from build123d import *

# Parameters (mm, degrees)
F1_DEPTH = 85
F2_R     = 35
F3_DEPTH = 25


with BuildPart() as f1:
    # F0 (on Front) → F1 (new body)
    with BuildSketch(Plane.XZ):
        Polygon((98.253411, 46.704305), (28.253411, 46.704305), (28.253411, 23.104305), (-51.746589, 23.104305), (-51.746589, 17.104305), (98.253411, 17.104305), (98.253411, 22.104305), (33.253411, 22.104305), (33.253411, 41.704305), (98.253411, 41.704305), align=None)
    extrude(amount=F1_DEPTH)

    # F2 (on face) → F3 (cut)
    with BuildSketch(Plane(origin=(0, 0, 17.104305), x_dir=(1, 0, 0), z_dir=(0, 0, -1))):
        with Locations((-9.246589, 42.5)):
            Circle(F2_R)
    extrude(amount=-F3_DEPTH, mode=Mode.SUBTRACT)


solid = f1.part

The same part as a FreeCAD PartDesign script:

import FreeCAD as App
import Part
import Sketcher

doc = App.newDocument("Part")
body = doc.addObject("PartDesign::Body", "Body")

# Sketch on XZ plane
sketch1 = doc.addObject("Sketcher::SketchObject", "Sketch")
body.addObject(sketch1)
sketch1.AttachmentSupport = (doc.XZ_Plane, [""])
sketch1.MapMode = "FlatFace"
sketch1.addGeometry([
    Part.LineSegment(App.Vector(98.253411, 46.704305, 0), App.Vector(28.253411, 46.704305, 0)),  # 0
    Part.LineSegment(App.Vector(28.253411, 46.704305, 0), App.Vector(28.253411, 23.104305, 0)),  # 1
    Part.LineSegment(App.Vector(28.253411, 23.104305, 0), App.Vector(-51.746589, 23.104305, 0)),  # 2
    Part.LineSegment(App.Vector(-51.746589, 23.104305, 0), App.Vector(-51.746589, 17.104305, 0)),  # 3
    Part.LineSegment(App.Vector(-51.746589, 17.104305, 0), App.Vector(98.253411, 17.104305, 0)),  # 4
    Part.LineSegment(App.Vector(98.253411, 17.104305, 0), App.Vector(98.253411, 22.104305, 0)),  # 5
    Part.LineSegment(App.Vector(98.253411, 22.104305, 0), App.Vector(33.253411, 22.104305, 0)),  # 6
    Part.LineSegment(App.Vector(33.253411, 22.104305, 0), App.Vector(33.253411, 41.704305, 0)),  # 7
    Part.LineSegment(App.Vector(33.253411, 41.704305, 0), App.Vector(98.253411, 41.704305, 0)),  # 8
    Part.LineSegment(App.Vector(98.253411, 41.704305, 0), App.Vector(98.253411, 46.704305, 0)),  # 9
], False)
sketch1.addConstraint([
    Sketcher.Constraint("Coincident", 0, 2, 1, 1),
    Sketcher.Constraint("Coincident", 1, 2, 2, 1),
    Sketcher.Constraint("Coincident", 2, 2, 3, 1),
    Sketcher.Constraint("Coincident", 3, 2, 4, 1),
    Sketcher.Constraint("Coincident", 4, 2, 5, 1),
    Sketcher.Constraint("Coincident", 5, 2, 6, 1),
    Sketcher.Constraint("Coincident", 6, 2, 7, 1),
    Sketcher.Constraint("Coincident", 7, 2, 8, 1),
    Sketcher.Constraint("Coincident", 8, 2, 9, 1),
    Sketcher.Constraint("Coincident", 9, 2, 0, 1),
    Sketcher.Constraint("Horizontal", 0),
    Sketcher.Constraint("Vertical", 1),
    Sketcher.Constraint("Horizontal", 2),
    Sketcher.Constraint("Vertical", 3),
    Sketcher.Constraint("Horizontal", 4),
    Sketcher.Constraint("Vertical", 5),
    Sketcher.Constraint("Horizontal", 6),
    Sketcher.Constraint("Vertical", 7),
    Sketcher.Constraint("Horizontal", 8),
    Sketcher.Constraint("Vertical", 9),
    Sketcher.Constraint("Vertical", 5, 2, 8, 2),
    Sketcher.Constraint("Equal", 5, 9),
    Sketcher.Constraint("DistanceX", 0, 2, 0, 1, 70.0),
    Sketcher.Constraint("DistanceX", 2, 2, 2, 1, 80.0),
    Sketcher.Constraint("DistanceX", 6, 2, 6, 1, 65.0),
    Sketcher.Constraint("DistanceY", 3, 2, 3, 1, 6.0),
    Sketcher.Constraint("DistanceY", 5, 1, 5, 2, 5.0),
    Sketcher.Constraint("DistanceY", 1, 2, 1, 1, 23.6),
    Sketcher.Constraint("DistanceX", -1, 1, 0, 2, 28.253411),
    Sketcher.Constraint("DistanceY", -1, 1, 0, 2, 46.704305),
])
pad1 = doc.addObject("PartDesign::Pad", "Pad")
body.addObject(pad1)
pad1.Profile = sketch1
pad1.Length = 85

# Sketch on XY plane
sketch2 = doc.addObject("Sketcher::SketchObject", "Sketch001")
body.addObject(sketch2)
sketch2.AttachmentSupport = (doc.XY_Plane, [""])
sketch2.MapMode = "FlatFace"
sketch2.AttachmentOffset = App.Placement(App.Vector(0, 0, 17.104305), App.Rotation())
sketch2.addGeometry(Part.Circle(App.Vector(-9.246589, -42.5, 0), App.Vector(0, 0, 1), 35), False)
sketch2.addConstraint([
    Sketcher.Constraint("Diameter", 0, 70.0),
    Sketcher.Constraint("DistanceY", 0, 3, -1, 1, 42.5),
    Sketcher.Constraint("DistanceX", 0, 3, -1, 1, 9.246589),
])
pocket1 = doc.addObject("PartDesign::Pocket", "Pocket")
body.addObject(pocket1)
pocket1.Profile = sketch2
pocket1.Length = 25
pocket1.Reversed = True

doc.recompute()
